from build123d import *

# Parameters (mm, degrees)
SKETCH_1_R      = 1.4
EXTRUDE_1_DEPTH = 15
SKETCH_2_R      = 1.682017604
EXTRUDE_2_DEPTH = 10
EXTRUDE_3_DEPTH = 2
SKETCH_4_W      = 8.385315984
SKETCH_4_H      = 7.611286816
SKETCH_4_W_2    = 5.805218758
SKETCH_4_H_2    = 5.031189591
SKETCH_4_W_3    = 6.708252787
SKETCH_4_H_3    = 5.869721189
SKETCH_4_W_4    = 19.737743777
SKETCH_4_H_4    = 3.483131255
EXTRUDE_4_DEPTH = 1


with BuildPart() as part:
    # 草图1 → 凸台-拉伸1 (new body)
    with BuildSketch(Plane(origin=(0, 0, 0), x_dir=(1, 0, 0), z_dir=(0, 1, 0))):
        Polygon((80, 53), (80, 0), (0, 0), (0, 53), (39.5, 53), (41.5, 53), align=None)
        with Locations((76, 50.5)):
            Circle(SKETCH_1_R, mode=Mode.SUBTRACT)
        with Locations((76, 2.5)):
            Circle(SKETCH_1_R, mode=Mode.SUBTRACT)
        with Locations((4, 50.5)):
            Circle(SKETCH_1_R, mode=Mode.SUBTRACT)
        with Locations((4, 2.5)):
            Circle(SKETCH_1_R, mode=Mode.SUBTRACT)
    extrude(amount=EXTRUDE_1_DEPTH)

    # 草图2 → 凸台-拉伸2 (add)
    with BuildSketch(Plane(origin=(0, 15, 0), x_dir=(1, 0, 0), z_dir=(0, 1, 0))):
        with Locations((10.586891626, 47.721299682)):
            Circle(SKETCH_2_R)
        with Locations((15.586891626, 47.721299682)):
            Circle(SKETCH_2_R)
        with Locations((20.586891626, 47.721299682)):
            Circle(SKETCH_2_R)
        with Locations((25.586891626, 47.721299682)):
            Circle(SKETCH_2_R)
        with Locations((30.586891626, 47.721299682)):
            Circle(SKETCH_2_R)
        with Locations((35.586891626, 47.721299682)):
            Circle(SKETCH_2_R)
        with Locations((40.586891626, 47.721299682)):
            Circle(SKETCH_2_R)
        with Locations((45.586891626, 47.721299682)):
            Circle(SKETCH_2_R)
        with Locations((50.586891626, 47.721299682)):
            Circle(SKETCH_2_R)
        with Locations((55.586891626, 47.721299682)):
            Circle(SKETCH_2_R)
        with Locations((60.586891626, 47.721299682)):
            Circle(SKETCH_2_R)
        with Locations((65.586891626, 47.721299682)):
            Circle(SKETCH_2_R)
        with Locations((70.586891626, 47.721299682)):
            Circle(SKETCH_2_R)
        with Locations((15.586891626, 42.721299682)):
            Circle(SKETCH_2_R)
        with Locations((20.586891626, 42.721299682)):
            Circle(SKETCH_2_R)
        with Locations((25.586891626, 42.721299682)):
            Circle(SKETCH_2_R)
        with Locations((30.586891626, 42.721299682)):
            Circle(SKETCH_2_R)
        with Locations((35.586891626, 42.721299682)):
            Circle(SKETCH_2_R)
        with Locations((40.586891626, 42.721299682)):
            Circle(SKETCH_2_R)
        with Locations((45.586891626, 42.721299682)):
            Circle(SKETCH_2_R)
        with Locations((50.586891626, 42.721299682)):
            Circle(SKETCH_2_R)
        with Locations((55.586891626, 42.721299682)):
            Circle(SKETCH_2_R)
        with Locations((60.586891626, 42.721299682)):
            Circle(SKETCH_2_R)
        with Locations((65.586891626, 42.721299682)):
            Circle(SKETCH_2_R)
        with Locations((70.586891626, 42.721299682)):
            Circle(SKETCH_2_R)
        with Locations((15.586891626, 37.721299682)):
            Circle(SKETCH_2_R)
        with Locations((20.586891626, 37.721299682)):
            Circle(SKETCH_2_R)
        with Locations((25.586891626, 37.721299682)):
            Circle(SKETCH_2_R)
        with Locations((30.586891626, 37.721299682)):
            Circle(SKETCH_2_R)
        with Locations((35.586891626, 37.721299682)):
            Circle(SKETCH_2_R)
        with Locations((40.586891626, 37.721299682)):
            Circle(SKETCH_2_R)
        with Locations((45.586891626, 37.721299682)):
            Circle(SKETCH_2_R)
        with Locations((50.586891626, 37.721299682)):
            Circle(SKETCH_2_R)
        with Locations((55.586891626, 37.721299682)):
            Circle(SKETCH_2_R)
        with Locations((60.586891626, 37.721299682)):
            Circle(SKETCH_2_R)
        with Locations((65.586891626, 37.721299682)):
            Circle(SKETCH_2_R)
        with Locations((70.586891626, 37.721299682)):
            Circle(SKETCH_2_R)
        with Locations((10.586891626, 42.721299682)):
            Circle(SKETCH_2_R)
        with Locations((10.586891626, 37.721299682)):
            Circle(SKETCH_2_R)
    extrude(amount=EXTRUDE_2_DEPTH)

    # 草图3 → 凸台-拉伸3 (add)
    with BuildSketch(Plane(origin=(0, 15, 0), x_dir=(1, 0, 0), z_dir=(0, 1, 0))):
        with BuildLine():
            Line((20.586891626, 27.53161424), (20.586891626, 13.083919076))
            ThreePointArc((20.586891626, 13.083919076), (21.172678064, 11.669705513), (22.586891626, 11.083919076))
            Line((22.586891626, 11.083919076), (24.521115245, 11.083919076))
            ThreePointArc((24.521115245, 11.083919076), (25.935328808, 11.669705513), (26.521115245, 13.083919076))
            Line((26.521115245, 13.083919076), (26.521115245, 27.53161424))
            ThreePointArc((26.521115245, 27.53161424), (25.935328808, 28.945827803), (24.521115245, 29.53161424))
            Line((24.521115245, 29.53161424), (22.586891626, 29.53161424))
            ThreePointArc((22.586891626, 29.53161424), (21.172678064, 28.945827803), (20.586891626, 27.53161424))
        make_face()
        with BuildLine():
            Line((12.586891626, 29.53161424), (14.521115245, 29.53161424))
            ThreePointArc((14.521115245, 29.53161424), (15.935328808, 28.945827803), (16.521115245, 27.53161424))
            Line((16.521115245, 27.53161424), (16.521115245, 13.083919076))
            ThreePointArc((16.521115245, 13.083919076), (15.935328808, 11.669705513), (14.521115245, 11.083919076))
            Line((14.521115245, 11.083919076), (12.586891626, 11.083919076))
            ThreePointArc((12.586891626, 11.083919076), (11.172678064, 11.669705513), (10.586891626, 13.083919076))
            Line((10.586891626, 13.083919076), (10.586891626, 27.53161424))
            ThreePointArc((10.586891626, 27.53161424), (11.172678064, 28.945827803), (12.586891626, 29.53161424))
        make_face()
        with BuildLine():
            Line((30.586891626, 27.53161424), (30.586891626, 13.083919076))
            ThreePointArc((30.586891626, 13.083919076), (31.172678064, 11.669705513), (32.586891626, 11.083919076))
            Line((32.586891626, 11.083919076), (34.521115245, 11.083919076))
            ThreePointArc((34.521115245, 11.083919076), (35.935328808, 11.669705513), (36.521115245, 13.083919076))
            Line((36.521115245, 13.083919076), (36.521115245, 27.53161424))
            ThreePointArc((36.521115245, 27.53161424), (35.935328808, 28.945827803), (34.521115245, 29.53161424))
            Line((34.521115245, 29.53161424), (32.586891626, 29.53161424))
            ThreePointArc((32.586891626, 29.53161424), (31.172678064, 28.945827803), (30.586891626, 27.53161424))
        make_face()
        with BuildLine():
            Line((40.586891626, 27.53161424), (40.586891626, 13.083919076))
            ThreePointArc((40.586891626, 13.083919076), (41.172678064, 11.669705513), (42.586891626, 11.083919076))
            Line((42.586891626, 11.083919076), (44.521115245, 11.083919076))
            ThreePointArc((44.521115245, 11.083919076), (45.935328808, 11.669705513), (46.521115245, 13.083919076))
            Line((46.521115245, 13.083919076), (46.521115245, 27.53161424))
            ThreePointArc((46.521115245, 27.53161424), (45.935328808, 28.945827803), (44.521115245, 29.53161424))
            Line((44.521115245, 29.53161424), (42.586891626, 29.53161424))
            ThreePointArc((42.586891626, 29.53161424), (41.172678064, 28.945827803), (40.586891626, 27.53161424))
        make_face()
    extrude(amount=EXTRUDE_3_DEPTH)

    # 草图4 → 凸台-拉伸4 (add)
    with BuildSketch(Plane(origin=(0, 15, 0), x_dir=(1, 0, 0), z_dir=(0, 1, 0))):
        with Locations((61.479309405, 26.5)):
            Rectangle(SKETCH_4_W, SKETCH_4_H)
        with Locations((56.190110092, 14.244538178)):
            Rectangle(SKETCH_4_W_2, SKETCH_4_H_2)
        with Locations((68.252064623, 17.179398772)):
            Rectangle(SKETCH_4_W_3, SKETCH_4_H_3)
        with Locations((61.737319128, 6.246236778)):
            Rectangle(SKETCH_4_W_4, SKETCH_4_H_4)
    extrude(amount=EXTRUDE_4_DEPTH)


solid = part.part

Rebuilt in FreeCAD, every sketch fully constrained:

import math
import FreeCAD as App
import Part
import Sketcher

V = App.Vector
Q = App.Units.Quantity

doc = App.newDocument("Part")
body = doc.addObject("PartDesign::Body", "Body")

# Sketch on XZ plane
sketch1 = doc.addObject("Sketcher::SketchObject", "Sketch")
body.addObject(sketch1)
sketch1.AttachmentSupport = (doc.XZ_Plane, [""])
sketch1.MapMode = "FlatFace"
sketch1.addGeometry(Part.LineSegment(V(80, 0, 0), V(80, -53, 0)), False)
sketch1.addGeometry(Part.LineSegment(V(80, -53, 0), V(0, -53, 0)), False)
sketch1.addGeometry(Part.LineSegment(V(0, -53, 0), V(0, 0, 0)), False)
sketch1.addGeometry(Part.LineSegment(V(0, 0, 0), V(80, 0, 0)), False)
sketch1.addGeometry(Part.Circle(V(76, -2.5, 0), V(0, 0, 1), 1.4), False)
sketch1.addGeometry(Part.Circle(V(4, -2.5, 0), V(0, 0, 1), 1.4), False)
sketch1.addGeometry(Part.Circle(V(76, -50.5, 0), V(0, 0, 1), 1.4), False)
sketch1.addGeometry(Part.Circle(V(4, -50.5, 0), V(0, 0, 1), 1.4), False)
sketch1.addConstraint(Sketcher.Constraint("Coincident", 0, 2, 1, 1))
sketch1.addConstraint(Sketcher.Constraint("Coincident", 1, 2, 2, 1))
sketch1.addConstraint(Sketcher.Constraint("Coincident", 2, 2, 3, 1))
sketch1.addConstraint(Sketcher.Constraint("Coincident", 3, 2, 0, 1))
sketch1.addConstraint(Sketcher.Constraint("Vertical", 0))
sketch1.addConstraint(Sketcher.Constraint("Horizontal", 1))
sketch1.addConstraint(Sketcher.Constraint("Vertical", 2))
sketch1.addConstraint(Sketcher.Constraint("Horizontal", 3))
sketch1.addConstraint(Sketcher.Constraint("Coincident", 2, 2, -1, 1))
sketch1.addConstraint(Sketcher.Constraint("Equal", 4, 5))
sketch1.addConstraint(Sketcher.Constraint("Equal", 5, 6))
sketch1.addConstraint(Sketcher.Constraint("Equal", 6, 7))
sketch1.addConstraint(Sketcher.Constraint("Horizontal", 4, 3, 5, 3))
sketch1.addConstraint(Sketcher.Constraint("Horizontal", 6, 3, 7, 3))
sketch1.addConstraint(Sketcher.Constraint("Vertical", 4, 3, 6, 3))
sketch1.addConstraint(Sketcher.Constraint("Vertical", 5, 3, 7, 3))
sketch1.addConstraint(Sketcher.Constraint("Diameter", 4, Q("2.8 mm")))
sketch1.addConstraint(Sketcher.Constraint("DistanceX", 1, 2, 1, 1, Q("80 mm")))
sketch1.addConstraint(Sketcher.Constraint("DistanceY", 0, 2, 0, 1, Q("53 mm")))
sketch1.addConstraint(Sketcher.Constraint("DistanceX", -1, 1, 4, 3, Q("76 mm")))
sketch1.addConstraint(Sketcher.Constraint("DistanceX", -1, 1, 5, 3, Q("4 mm")))
sketch1.addConstraint(Sketcher.Constraint("DistanceY", 6, 3, 4, 3, Q("48 mm")))
sketch1.addConstraint(Sketcher.Constraint("DistanceY", 4, 3, -1, 1, Q("2.5 mm")))
pad1 = doc.addObject("PartDesign::Pad", "Pad")
body.addObject(pad1)
pad1.Profile = sketch1
pad1.Length = 15
pad1.Reversed = True

# Sketch on XZ plane
sketch2 = doc.addObject("Sketcher::SketchObject", "Sketch001")
body.addObject(sketch2)
sketch2.AttachmentSupport = (doc.XZ_Plane, [""])
sketch2.MapMode = "FlatFace"
sketch2.AttachmentOffset = App.Placement(V(0, 0, -15), App.Rotation())
sketch2.addGeometry(Part.Circle(V(10.586892, -47.7213, 0), V(0, 0, 1), 1.682018), False)
sketch2.addGeometry(Part.Circle(V(15.586892, -47.7213, 0), V(0, 0, 1), 1.682018), False)
sketch2.addGeometry(Part.Circle(V(20.586892, -47.7213, 0), V(0, 0, 1), 1.682018), False)
sketch2.addGeometry(Part.Circle(V(25.586892, -47.7213, 0), V(0, 0, 1), 1.682018), False)
sketch2.addGeometry(Part.Circle(V(30.586892, -47.7213, 0), V(0, 0, 1), 1.682018), False)
sketch2.addGeometry(Part.Circle(V(35.586892, -47.7213, 0), V(0, 0, 1), 1.682018), False)
sketch2.addGeometry(Part.Circle(V(40.586892, -47.7213, 0), V(0, 0, 1), 1.682018), False)
sketch2.addGeometry(Part.Circle(V(45.586892, -47.7213, 0), V(0, 0, 1), 1.682018), False)
sketch2.addGeometry(Part.Circle(V(50.586892, -47.7213, 0), V(0, 0, 1), 1.682018), False)
sketch2.addGeometry(Part.Circle(V(55.586892, -47.7213, 0), V(0, 0, 1), 1.682018), False)
sketch2.addGeometry(Part.Circle(V(60.586892, -47.7213, 0), V(0, 0, 1), 1.682018), False)
sketch2.addGeometry(Part.Circle(V(65.586892, -47.7213, 0), V(0, 0, 1), 1.682018), False)
sketch2.addGeometry(Part.Circle(V(70.586892, -47.7213, 0), V(0, 0, 1), 1.682018), False)
sketch2.addGeometry(Part.Circle(V(15.586892, -42.7213, 0), V(0, 0, 1), 1.682018), False)
sketch2.addGeometry(Part.Circle(V(20.586892, -42.7213, 0), V(0, 0, 1), 1.682018), False)
sketch2.addGeometry(Part.Circle(V(25.586892, -42.7213, 0), V(0, 0, 1), 1.682018), False)
sketch2.addGeometry(Part.Circle(V(30.586892, -42.7213, 0), V(0, 0, 1), 1.682018), False)
sketch2.addGeometry(Part.Circle(V(35.586892, -42.7213, 0), V(0, 0, 1), 1.682018), False)
sketch2.addGeometry(Part.Circle(V(40.586892, -42.7213, 0), V(0, 0, 1), 1.682018), False)
sketch2.addGeometry(Part.Circle(V(45.586892, -42.7213, 0), V(0, 0, 1), 1.682018), False)
sketch2.addGeometry(Part.Circle(V(50.586892, -42.7213, 0), V(0, 0, 1), 1.682018), False)
sketch2.addGeometry(Part.Circle(V(55.586892, -42.7213, 0), V(0, 0, 1), 1.682018), False)
sketch2.addGeometry(Part.Circle(V(60.586892, -42.7213, 0), V(0, 0, 1), 1.682018), False)
sketch2.addGeometry(Part.Circle(V(65.586892, -42.7213, 0), V(0, 0, 1), 1.682018), False)
sketch2.addGeometry(Part.Circle(V(70.586892, -42.7213, 0), V(0, 0, 1), 1.682018), False)
sketch2.addGeometry(Part.Circle(V(15.586892, -37.7213, 0), V(0, 0, 1), 1.682018), False)
sketch2.addGeometry(Part.Circle(V(20.586892, -37.7213, 0), V(0, 0, 1), 1.682018), False)
sketch2.addGeometry(Part.Circle(V(25.586892, -37.7213, 0), V(0, 0, 1), 1.682018), False)
sketch2.addGeometry(Part.Circle(V(30.586892, -37.7213, 0), V(0, 0, 1), 1.682018), False)
sketch2.addGeometry(Part.Circle(V(35.586892, -37.7213, 0), V(0, 0, 1), 1.682018), False)
sketch2.addGeometry(Part.Circle(V(40.586892, -37.7213, 0), V(0, 0, 1), 1.682018), False)
sketch2.addGeometry(Part.Circle(V(45.586892, -37.7213, 0), V(0, 0, 1), 1.682018), False)
sketch2.addGeometry(Part.Circle(V(50.586892, -37.7213, 0), V(0, 0, 1), 1.682018), False)
sketch2.addGeometry(Part.Circle(V(55.586892, -37.7213, 0), V(0, 0, 1), 1.682018), False)
sketch2.addGeometry(Part.Circle(V(60.586892, -37.7213, 0), V(0, 0, 1), 1.682018), False)
sketch2.addGeometry(Part.Circle(V(65.586892, -37.7213, 0), V(0, 0, 1), 1.682018), False)
sketch2.addGeometry(Part.Circle(V(70.586892, -37.7213, 0), V(0, 0, 1), 1.682018), False)
sketch2.addGeometry(Part.Circle(V(10.586892, -42.7213, 0), V(0, 0, 1), 1.682018), False)
sketch2.addGeometry(Part.Circle(V(10.586892, -37.7213, 0), V(0, 0, 1), 1.682018), False)
sketch2.addConstraint(Sketcher.Constraint("Equal", 0, 1))
sketch2.addConstraint(Sketcher.Constraint("Equal", 1, 2))
sketch2.addConstraint(Sketcher.Constraint("Equal", 2, 3))
sketch2.addConstraint(Sketcher.Constraint("Equal", 3, 4))
sketch2.addConstraint(Sketcher.Constraint("Equal", 4, 5))
sketch2.addConstraint(Sketcher.Constraint("Equal", 5, 6))
sketch2.addConstraint(Sketcher.Constraint("Equal", 6, 7))
sketch2.addConstraint(Sketcher.Constraint("Equal", 7, 8))
sketch2.addConstraint(Sketcher.Constraint("Equal", 8, 9))
sketch2.addConstraint(Sketcher.Constraint("Equal", 9, 10))
sketch2.addConstraint(Sketcher.Constraint("Equal", 10, 11))
sketch2.addConstraint(Sketcher.Constraint("Equal", 11, 12))
sketch2.addConstraint(Sketcher.Constraint("Equal", 12, 13))
sketch2.addConstraint(Sketcher.Constraint("Equal", 13, 14))
sketch2.addConstraint(Sketcher.Constraint("Equal", 14, 15))
sketch2.addConstraint(Sketcher.Constraint("Equal", 15, 16))
sketch2.addConstraint(Sketcher.Constraint("Equal", 16, 17))
sketch2.addConstraint(Sketcher.Constraint("Equal", 17, 18))
sketch2.addConstraint(Sketcher.Constraint("Equal", 18, 19))
sketch2.addConstraint(Sketcher.Constraint("Equal", 19, 20))
sketch2.addConstraint(Sketcher.Constraint("Equal", 20, 21))
sketch2.addConstraint(Sketcher.Constraint("Equal", 21, 22))
sketch2.addConstraint(Sketcher.Constraint("Equal", 22, 23))
sketch2.addConstraint(Sketcher.Constraint("Equal", 23, 24))
sketch2.addConstraint(Sketcher.Constraint("Equal", 24, 25))
sketch2.addConstraint(Sketcher.Constraint("Equal", 25, 26))
sketch2.addConstraint(Sketcher.Constraint("Equal", 26, 27))
sketch2.addConstraint(Sketcher.Constraint("Equal", 27, 28))
sketch2.addConstraint(Sketcher.Constraint("Equal", 28, 29))
sketch2.addConstraint(Sketcher.Constraint("Equal", 29, 30))
sketch2.addConstraint(Sketcher.Constraint("Equal", 30, 31))
sketch2.addConstraint(Sketcher.Constraint("Equal", 31, 32))
sketch2.addConstraint(Sketcher.Constraint("Equal", 32, 33))
sketch2.addConstraint(Sketcher.Constraint("Equal", 33, 34))
sketch2.addConstraint(Sketcher.Constraint("Equal", 34, 35))
sketch2.addConstraint(Sketcher.Constraint("Equal", 35, 36))
sketch2.addConstraint(Sketcher.Constraint("Equal", 36, 37))
sketch2.addConstraint(Sketcher.Constraint("Equal", 37, 38))
sketch2.addConstraint(Sketcher.Constraint("Horizontal", 0, 3, 1, 3))
sketch2.addConstraint(Sketcher.Constraint("Horizontal", 1, 3, 2, 3))
sketch2.addConstraint(Sketcher.Constraint("Horizontal", 2, 3, 3, 3))
sketch2.addConstraint(Sketcher.Constraint("Horizontal", 3, 3, 4, 3))
sketch2.addConstraint(Sketcher.Constraint("Horizontal", 4, 3, 5, 3))
sketch2.addConstraint(Sketcher.Constraint("Horizontal", 5, 3, 6, 3))
sketch2.addConstraint(Sketcher.Constraint("Horizontal", 6, 3, 7, 3))
sketch2.addConstraint(Sketcher.Constraint("Horizontal", 7, 3, 8, 3))
sketch2.addConstraint(Sketcher.Constraint("Horizontal", 8, 3, 9, 3))
sketch2.addConstraint(Sketcher.Constraint("Horizontal", 9, 3, 10, 3))
sketch2.addConstraint(Sketcher.Constraint("Horizontal", 10, 3, 11, 3))
sketch2.addConstraint(Sketcher.Constraint("Horizontal", 11, 3, 12, 3))
sketch2.addConstraint(Sketcher.Constraint("Horizontal", 13, 3, 14, 3))
sketch2.addConstraint(Sketcher.Constraint("Horizontal", 14, 3, 15, 3))
sketch2.addConstraint(Sketcher.Constraint("Horizontal", 15, 3, 16, 3))
sketch2.addConstraint(Sketcher.Constraint("Horizontal", 16, 3, 17, 3))
sketch2.addConstraint(Sketcher.Constraint("Horizontal", 17, 3, 18, 3))
sketch2.addConstraint(Sketcher.Constraint("Horizontal", 18, 3, 19, 3))
sketch2.addConstraint(Sketcher.Constraint("Horizontal", 19, 3, 20, 3))
sketch2.addConstraint(Sketcher.Constraint("Horizontal", 20, 3, 21, 3))
sketch2.addConstraint(Sketcher.Constraint("Horizontal", 21, 3, 22, 3))
sketch2.addConstraint(Sketcher.Constraint("Horizontal", 22, 3, 23, 3))
sketch2.addConstraint(Sketcher.Constraint("Horizontal", 23, 3, 24, 3))
sketch2.addConstraint(Sketcher.Constraint("Horizontal", 25, 3, 26, 3))
sketch2.addConstraint(Sketcher.Constraint("Horizontal", 26, 3, 27, 3))
sketch2.addConstraint(Sketcher.Constraint("Horizontal", 27, 3, 28, 3))
sketch2.addConstraint(Sketcher.Constraint("Horizontal", 28, 3, 29, 3))
sketch2.addConstraint(Sketcher.Constraint("Horizontal", 29, 3, 30, 3))
sketch2.addConstraint(Sketcher.Constraint("Horizontal", 30, 3, 31, 3))
sketch2.addConstraint(Sketcher.Constraint("Horizontal", 31, 3, 32, 3))
sketch2.addConstraint(Sketcher.Constraint("Horizontal", 32, 3, 33, 3))
sketch2.addConstraint(Sketcher.Constraint("Horizontal", 33, 3, 34, 3))
sketch2.addConstraint(Sketcher.Constraint("Horizontal", 34, 3, 35, 3))
sketch2.addConstraint(Sketcher.Constraint("Horizontal", 35, 3, 36, 3))
sketch2.addConstraint(Sketcher.Constraint("Horizontal", 24, 3, 37, 3))
sketch2.addConstraint(Sketcher.Constraint("Horizontal", 36, 3, 38, 3))
sketch2.addConstraint(Sketcher.Constraint("Vertical", 1, 3, 13, 3))
sketch2.addConstraint(Sketcher.Constraint("Vertical", 2, 3, 14, 3))
sketch2.addConstraint(Sketcher.Constraint("Vertical", 3, 3, 15, 3))
sketch2.addConstraint(Sketcher.Constraint("Vertical", 4, 3, 16, 3))
sketch2.addConstraint(Sketcher.Constraint("Vertical", 5, 3, 17, 3))
sketch2.addConstraint(Sketcher.Constraint("Vertical", 6, 3, 18, 3))
sketch2.addConstraint(Sketcher.Constraint("Vertical", 7, 3, 19, 3))
sketch2.addConstraint(Sketcher.Constraint("Vertical", 8, 3, 20, 3))
sketch2.addConstraint(Sketcher.Constraint("Vertical", 9, 3, 21, 3))
sketch2.addConstraint(Sketcher.Constraint("Vertical", 10, 3, 22, 3))
sketch2.addConstraint(Sketcher.Constraint("Vertical", 11, 3, 23, 3))
sketch2.addConstraint(Sketcher.Constraint("Vertical", 12, 3, 24, 3))
sketch2.addConstraint(Sketcher.Constraint("Vertical", 13, 3, 25, 3))
sketch2.addConstraint(Sketcher.Constraint("Vertical", 14, 3, 26, 3))
sketch2.addConstraint(Sketcher.Constraint("Vertical", 15, 3, 27, 3))
sketch2.addConstraint(Sketcher.Constraint("Vertical", 16, 3, 28, 3))
sketch2.addConstraint(Sketcher.Constraint("Vertical", 17, 3, 29, 3))
sketch2.addConstraint(Sketcher.Constraint("Vertical", 18, 3, 30, 3))
sketch2.addConstraint(Sketcher.Constraint("Vertical", 19, 3, 31, 3))
sketch2.addConstraint(Sketcher.Constraint("Vertical", 20, 3, 32, 3))
sketch2.addConstraint(Sketcher.Constraint("Vertical", 21, 3, 33, 3))
sketch2.addConstraint(Sketcher.Constraint("Vertical", 22, 3, 34, 3))
sketch2.addConstraint(Sketcher.Constraint("Vertical", 23, 3, 35, 3))
sketch2.addConstraint(Sketcher.Constraint("Vertical", 24, 3, 36, 3))
sketch2.addConstraint(Sketcher.Constraint("Vertical", 0, 3, 37, 3))
sketch2.addConstraint(Sketcher.Constraint("Vertical", 37, 3, 38, 3))
sketch2.addConstraint(Sketcher.Constraint("DistanceX", 0, 3, 1, 3, Q("5 mm")))
sketch2.addConstraint(Sketcher.Constraint("DistanceX", 1, 3, 2, 3, Q("5 mm")))
sketch2.addConstraint(Sketcher.Constraint("DistanceX", 2, 3, 3, 3, Q("5 mm")))
sketch2.addConstraint(Sketcher.Constraint("DistanceX", 3, 3, 4, 3, Q("5 mm")))
sketch2.addConstraint(Sketcher.Constraint("DistanceX", 4, 3, 5, 3, Q("5 mm")))
sketch2.addConstraint(Sketcher.Constraint("DistanceX", 5, 3, 6, 3, Q("5 mm")))
sketch2.addConstraint(Sketcher.Constraint("DistanceX", 6, 3, 7, 3, Q("5 mm")))
sketch2.addConstraint(Sketcher.Constraint("DistanceX", 7, 3, 8, 3, Q("5 mm")))
sketch2.addConstraint(Sketcher.Constraint("DistanceX", 8, 3, 9, 3, Q("5 mm")))
sketch2.addConstraint(Sketcher.Constraint("DistanceX", 9, 3, 10, 3, Q("5 mm")))
sketch2.addConstraint(Sketcher.Constraint("DistanceX", 10, 3, 11, 3, Q("5 mm")))
sketch2.addConstraint(Sketcher.Constraint("DistanceX", 11, 3, 12, 3, Q("5 mm")))
sketch2.addConstraint(Sketcher.Constraint("DistanceY", 1, 3, 13, 3, Q("5 mm")))
sketch2.addConstraint(Sketcher.Constraint("DistanceY", 13, 3, 25, 3, Q("5 mm")))
sketch2.addConstraint(Sketcher.Constraint("Diameter", 0, Q("3.364035 mm")))
sketch2.addConstraint(Sketcher.Constraint("DistanceY", 0, 3, -1, 1, Q("47.7213 mm")))
sketch2.addConstraint(Sketcher.Constraint("DistanceX", -1, 1, 0, 3, Q("10.586892 mm")))
pad2 = doc.addObject("PartDesign::Pad", "Pad001")
body.addObject(pad2)
pad2.Profile = sketch2
pad2.Length = 10
pad2.Reversed = True

# Sketch on XZ plane
sketch3 = doc.addObject("Sketcher::SketchObject", "Sketch002")
body.addObject(sketch3)
sketch3.AttachmentSupport = (doc.XZ_Plane, [""])
sketch3.MapMode = "FlatFace"
sketch3.AttachmentOffset = App.Placement(V(0, 0, -15), App.Rotation())
sketch3.addGeometry(Part.LineSegment(V(20.586892, -27.531614, 0), V(20.586892, -13.083919, 0)), False)
sketch3.addGeometry(Part.ArcOfCircle(Part.Circle(V(22.586892, -13.083919, 0), V(0, 0, 1), 2), math.radians(90), math.radians(180)), False)
sketch3.addGeometry(Part.LineSegment(V(22.586892, -11.083919, 0), V(24.521115, -11.083919, 0)), False)
sketch3.addGeometry(Part.ArcOfCircle(Part.Circle(V(24.521115, -13.083919, 0), V(0, 0, 1), 2), math.radians(0), math.radians(90)), False)
sketch3.addGeometry(Part.LineSegment(V(26.521115, -13.083919, 0), V(26.521115, -27.531614, 0)), False)
sketch3.addGeometry(Part.ArcOfCircle(Part.Circle(V(24.521115, -27.531614, 0), V(0, 0, 1), 2), math.radians(-90), math.radians(0)), False)
sketch3.addGeometry(Part.LineSegment(V(24.521115, -29.531614, 0), V(22.586892, -29.531614, 0)), False)
sketch3.addGeometry(Part.ArcOfCircle(Part.Circle(V(22.586892, -27.531614, 0), V(0, 0, 1), 2), math.radians(180), math.radians(270)), False)
sketch3.addGeometry(Part.LineSegment(V(14.521115, -29.531614, 0), V(12.586892, -29.531614, 0)), False)
sketch3.addGeometry(Part.ArcOfCircle(Part.Circle(V(12.586892, -27.531614, 0), V(0, 0, 1), 2), math.radians(180), math.radians(270)), False)
sketch3.addGeometry(Part.LineSegment(V(10.586892, -27.531614, 0), V(10.586892, -13.083919, 0)), False)
sketch3.addGeometry(Part.ArcOfCircle(Part.Circle(V(12.586892, -13.083919, 0), V(0, 0, 1), 2), math.radians(90), math.radians(180)), False)
sketch3.addGeometry(Part.LineSegment(V(12.586892, -11.083919, 0), V(14.521115, -11.083919, 0)), False)
sketch3.addGeometry(Part.ArcOfCircle(Part.Circle(V(14.521115, -13.083919, 0), V(0, 0, 1), 2), math.radians(0), math.radians(90)), False)
sketch3.addGeometry(Part.LineSegment(V(16.521115, -13.083919, 0), V(16.521115, -27.531614, 0)), False)
sketch3.addGeometry(Part.ArcOfCircle(Part.Circle(V(14.521115, -27.531614, 0), V(0, 0, 1), 2), math.radians(-90), math.radians(0)), False)
sketch3.addGeometry(Part.LineSegment(V(30.586892, -27.531614, 0), V(30.586892, -13.083919, 0)), False)
sketch3.addGeometry(Part.ArcOfCircle(Part.Circle(V(32.586892, -13.083919, 0), V(0, 0, 1), 2), math.radians(90), math.radians(180)), False)
sketch3.addGeometry(Part.LineSegment(V(32.586892, -11.083919, 0), V(34.521115, -11.083919, 0)), False)
sketch3.addGeometry(Part.ArcOfCircle(Part.Circle(V(34.521115, -13.083919, 0), V(0, 0, 1), 2), math.radians(0), math.radians(90)), False)
sketch3.addGeometry(Part.LineSegment(V(36.521115, -13.083919, 0), V(36.521115, -27.531614, 0)), False)
sketch3.addGeometry(Part.ArcOfCircle(Part.Circle(V(34.521115, -27.531614, 0), V(0, 0, 1), 2), math.radians(-90), math.radians(0)), False)
sketch3.addGeometry(Part.LineSegment(V(34.521115, -29.531614, 0), V(32.586892, -29.531614, 0)), False)
sketch3.addGeometry(Part.ArcOfCircle(Part.Circle(V(32.586892, -27.531614, 0), V(0, 0, 1), 2), math.radians(180), math.radians(270)), False)
sketch3.addGeometry(Part.LineSegment(V(40.586892, -27.531614, 0), V(40.586892, -13.083919, 0)), False)
sketch3.addGeometry(Part.ArcOfCircle(Part.Circle(V(42.586892, -13.083919, 0), V(0, 0, 1), 2), math.radians(90), math.radians(180)), False)
sketch3.addGeometry(Part.LineSegment(V(42.586892, -11.083919, 0), V(44.521115, -11.083919, 0)), False)
sketch3.addGeometry(Part.ArcOfCircle(Part.Circle(V(44.521115, -13.083919, 0), V(0, 0, 1), 2), math.radians(0), math.radians(90)), False)
sketch3.addGeometry(Part.LineSegment(V(46.521115, -13.083919, 0), V(46.521115, -27.531614, 0)), False)
sketch3.addGeometry(Part.ArcOfCircle(Part.Circle(V(44.521115, -27.531614, 0), V(0, 0, 1), 2), math.radians(-90), math.radians(0)), False)
sketch3.addGeometry(Part.LineSegment(V(44.521115, -29.531614, 0), V(42.586892, -29.531614, 0)), False)
sketch3.addGeometry(Part.ArcOfCircle(Part.Circle(V(42.586892, -27.531614, 0), V(0, 0, 1), 2), math.radians(180), math.radians(270)), False)
sketch3.addConstraint(Sketcher.Constraint("Tangent", 0, 2, 1, 2))
sketch3.addConstraint(Sketcher.Constraint("Tangent", 1, 1, 2, 1))
sketch3.addConstraint(Sketcher.Constraint("Tangent", 2, 2, 3, 2))
sketch3.addConstraint(Sketcher.Constraint("Tangent", 3, 1, 4, 1))
sketch3.addConstraint(Sketcher.Constraint("Tangent", 4, 2, 5, 2))
sketch3.addConstraint(Sketcher.Constraint("Tangent", 5, 1, 6, 1))
sketch3.addConstraint(Sketcher.Constraint("Tangent", 6, 2, 7, 2))
sketch3.addConstraint(Sketcher.Constraint("Tangent", 7, 1, 0, 1))
sketch3.addConstraint(Sketcher.Constraint("Tangent", 8, 2, 9, 2))
sketch3.addConstraint(Sketcher.Constraint("Tangent", 9, 1, 10, 1))
sketch3.addConstraint(Sketcher.Constraint("Tangent", 10, 2, 11, 2))
sketch3.addConstraint(Sketcher.Constraint("Tangent", 11, 1, 12, 1))
sketch3.addConstraint(Sketcher.Constraint("Tangent", 12, 2, 13, 2))
sketch3.addConstraint(Sketcher.Constraint("Tangent", 13, 1, 14, 1))
sketch3.addConstraint(Sketcher.Constraint("Tangent", 14, 2, 15, 2))
sketch3.addConstraint(Sketcher.Constraint("Tangent", 15, 1, 8, 1))
sketch3.addConstraint(Sketcher.Constraint("Tangent", 16, 2, 17, 2))
sketch3.addConstraint(Sketcher.Constraint("Tangent", 17, 1, 18, 1))
sketch3.addConstraint(Sketcher.Constraint("Tangent", 18, 2, 19, 2))
sketch3.addConstraint(Sketcher.Constraint("Tangent", 19, 1, 20, 1))
sketch3.addConstraint(Sketcher.Constraint("Tangent", 20, 2, 21, 2))
sketch3.addConstraint(Sketcher.Constraint("Tangent", 21, 1, 22, 1))
sketch3.addConstraint(Sketcher.Constraint("Tangent", 22, 2, 23, 2))
sketch3.addConstraint(Sketcher.Constraint("Tangent", 23, 1, 16, 1))
sketch3.addConstraint(Sketcher.Constraint("Tangent", 24, 2, 25, 2))
sketch3.addConstraint(Sketcher.Constraint("Tangent", 25, 1, 26, 1))
sketch3.addConstraint(Sketcher.Constraint("Tangent", 26, 2, 27, 2))
sketch3.addConstraint(Sketcher.Constraint("Tangent", 27, 1, 28, 1))
sketch3.addConstraint(Sketcher.Constraint("Tangent", 28, 2, 29, 2))
sketch3.addConstraint(Sketcher.Constraint("Tangent", 29, 1, 30, 1))
sketch3.addConstraint(Sketcher.Constraint("Tangent", 30, 2, 31, 2))
sketch3.addConstraint(Sketcher.Constraint("Tangent", 31, 1, 24, 1))
sketch3.addConstraint(Sketcher.Constraint("Vertical", 0))
sketch3.addConstraint(Sketcher.Constraint("Horizontal", 2))
sketch3.addConstraint(Sketcher.Constraint("Vertical", 4))
sketch3.addConstraint(Sketcher.Constraint("Horizontal", 6))
sketch3.addConstraint(Sketcher.Constraint("Horizontal", 8))
sketch3.addConstraint(Sketcher.Constraint("Vertical", 10))
sketch3.addConstraint(Sketcher.Constraint("Horizontal", 12))
sketch3.addConstraint(Sketcher.Constraint("Vertical", 14))
sketch3.addConstraint(Sketcher.Constraint("Vertical", 16))
sketch3.addConstraint(Sketcher.Constraint("Horizontal", 18))
sketch3.addConstraint(Sketcher.Constraint("Vertical", 20))
sketch3.addConstraint(Sketcher.Constraint("Horizontal", 22))
sketch3.addConstraint(Sketcher.Constraint("Vertical", 24))
sketch3.addConstraint(Sketcher.Constraint("Horizontal", 26))
sketch3.addConstraint(Sketcher.Constraint("Vertical", 28))
sketch3.addConstraint(Sketcher.Constraint("Horizontal", 30))
sketch3.addConstraint(Sketcher.Constraint("Equal", 1, 3))
sketch3.addConstraint(Sketcher.Constraint("Equal", 3, 5))
sketch3.addConstraint(Sketcher.Constraint("Equal", 5, 7))
sketch3.addConstraint(Sketcher.Constraint("Equal", 7, 9))
sketch3.addConstraint(Sketcher.Constraint("Equal", 9, 11))
sketch3.addConstraint(Sketcher.Constraint("Equal", 11, 13))
sketch3.addConstraint(Sketcher.Constraint("Equal", 13, 15))
sketch3.addConstraint(Sketcher.Constraint("Equal", 15, 17))
sketch3.addConstraint(Sketcher.Constraint("Equal", 17, 19))
sketch3.addConstraint(Sketcher.Constraint("Equal", 19, 21))
sketch3.addConstraint(Sketcher.Constraint("Equal", 21, 23))
sketch3.addConstraint(Sketcher.Constraint("Equal", 23, 25))
sketch3.addConstraint(Sketcher.Constraint("Equal", 25, 27))
sketch3.addConstraint(Sketcher.Constraint("Equal", 27, 29))
sketch3.addConstraint(Sketcher.Constraint("Equal", 29, 31))
sketch3.addConstraint(Sketcher.Constraint("Horizontal", 7, 3, 9, 3))
sketch3.addConstraint(Sketcher.Constraint("Horizontal", 3, 3, 11, 3))
sketch3.addConstraint(Sketcher.Constraint("Horizontal", 13, 3, 17, 3))
sketch3.addConstraint(Sketcher.Constraint("Horizontal", 15, 3, 21, 3))
sketch3.addConstraint(Sketcher.Constraint("Horizontal", 19, 3, 25, 3))
sketch3.addConstraint(Sketcher.Constraint("Horizontal", 23, 3, 29, 3))
sketch3.addConstraint(Sketcher.Constraint("Equal", 6, 8))
sketch3.addConstraint(Sketcher.Constraint("Equal", 12, 18))
sketch3.addConstraint(Sketcher.Constraint("Equal", 22, 26))
sketch3.addConstraint(Sketcher.Constraint("Radius", 1, Q("2 mm")))
sketch3.addConstraint(Sketcher.Constraint("DistanceX", 9, 3, 7, 3, Q("10 mm")))
sketch3.addConstraint(Sketcher.Constraint("DistanceX", 1, 3, 17, 3, Q("10 mm")))
sketch3.addConstraint(Sketcher.Constraint("DistanceX", 17, 3, 25, 3, Q("10 mm")))
sketch3.addConstraint(Sketcher.Constraint("DistanceX", 2, 1, 2, 2, Q("1.934224 mm")))
sketch3.addConstraint(Sketcher.Constraint("DistanceY", 0, 1, 0, 2, Q("14.447695 mm")))
sketch3.addConstraint(Sketcher.Constraint("DistanceX", -1, 1, 1, 3, Q("22.586892 mm")))
sketch3.addConstraint(Sketcher.Constraint("DistanceY", 1, 3, -1, 1, Q("13.083919 mm")))
pad3 = doc.addObject("PartDesign::Pad", "Pad002")
body.addObject(pad3)
pad3.Profile = sketch3
pad3.Length = 2
pad3.Reversed = True

# Sketch on XZ plane
sketch4 = doc.addObject("Sketcher::SketchObject", "Sketch003")
body.addObject(sketch4)
sketch4.AttachmentSupport = (doc.XZ_Plane, [""])
sketch4.MapMode = "FlatFace"
sketch4.AttachmentOffset = App.Placement(V(0, 0, -15), App.Rotation())
sketch4.addGeometry(Part.LineSegment(V(57.286651, -30.305643, 0), V(57.286651, -22.694357, 0)), False)
sketch4.addGeometry(Part.LineSegment(V(57.286651, -22.694357, 0), V(65.671967, -22.694357, 0)), False)
sketch4.addGeometry(Part.LineSegment(V(65.671967, -22.694357, 0), V(65.671967, -30.305643, 0)), False)
sketch4.addGeometry(Part.LineSegment(V(65.671967, -30.305643, 0), V(57.286651, -30.305643, 0)), False)
sketch4.addGeometry(Part.LineSegment(V(53.287501, -16.760133, 0), V(53.287501, -11.728943, 0)), False)
sketch4.addGeometry(Part.LineSegment(V(53.287501, -11.728943, 0), V(59.092719, -11.728943, 0)), False)
sketch4.addGeometry(Part.LineSegment(V(59.092719, -11.728943, 0), V(59.092719, -16.760133, 0)), False)
sketch4.addGeometry(Part.LineSegment(V(59.092719, -16.760133, 0), V(53.287501, -16.760133, 0)), False)
sketch4.addGeometry(Part.LineSegment(V(64.897938, -20.114259, 0), V(64.897938, -14.244538, 0)), False)
sketch4.addGeometry(Part.LineSegment(V(64.897938, -14.244538, 0), V(71.606191, -14.244538, 0)), False)
sketch4.addGeometry(Part.LineSegment(V(71.606191, -14.244538, 0), V(71.606191, -20.114259, 0)), False)
sketch4.addGeometry(Part.LineSegment(V(71.606191, -20.114259, 0), V(64.897938, -20.114259, 0)), False)
sketch4.addGeometry(Part.LineSegment(V(51.868447, -7.987802, 0), V(51.868447, -4.504671, 0)), False)
sketch4.addGeometry(Part.LineSegment(V(51.868447, -4.504671, 0), V(71.606191, -4.504671, 0)), False)
sketch4.addGeometry(Part.LineSegment(V(71.606191, -4.504671, 0), V(71.606191, -7.987802, 0)), False)
sketch4.addGeometry(Part.LineSegment(V(71.606191, -7.987802, 0), V(51.868447, -7.987802, 0)), False)
sketch4.addConstraint(Sketcher.Constraint("Coincident", 0, 2, 1, 1))
sketch4.addConstraint(Sketcher.Constraint("Coincident", 1, 2, 2, 1))
sketch4.addConstraint(Sketcher.Constraint("Coincident", 2, 2, 3, 1))
sketch4.addConstraint(Sketcher.Constraint("Coincident", 3, 2, 0, 1))
sketch4.addConstraint(Sketcher.Constraint("Coincident", 4, 2, 5, 1))
sketch4.addConstraint(Sketcher.Constraint("Coincident", 5, 2, 6, 1))
sketch4.addConstraint(Sketcher.Constraint("Coincident", 6, 2, 7, 1))
sketch4.addConstraint(Sketcher.Constraint("Coincident", 7, 2, 4, 1))
sketch4.addConstraint(Sketcher.Constraint("Coincident", 8, 2, 9, 1))
sketch4.addConstraint(Sketcher.Constraint("Coincident", 9, 2, 10, 1))
sketch4.addConstraint(Sketcher.Constraint("Coincident", 10, 2, 11, 1))
sketch4.addConstraint(Sketcher.Constraint("Coincident", 11, 2, 8, 1))
sketch4.addConstraint(Sketcher.Constraint("Coincident", 12, 2, 13, 1))
sketch4.addConstraint(Sketcher.Constraint("Coincident", 13, 2, 14, 1))
sketch4.addConstraint(Sketcher.Constraint("Coincident", 14, 2, 15, 1))
sketch4.addConstraint(Sketcher.Constraint("Coincident", 15, 2, 12, 1))
sketch4.addConstraint(Sketcher.Constraint("Vertical", 0))
sketch4.addConstraint(Sketcher.Constraint("Horizontal", 1))
sketch4.addConstraint(Sketcher.Constraint("Vertical", 2))
sketch4.addConstraint(Sketcher.Constraint("Horizontal", 3))
sketch4.addConstraint(Sketcher.Constraint("Vertical", 4))
sketch4.addConstraint(Sketcher.Constraint("Horizontal", 5))
sketch4.addConstraint(Sketcher.Constraint("Vertical", 6))
sketch4.addConstraint(Sketcher.Constraint("Horizontal", 7))
sketch4.addConstraint(Sketcher.Constraint("Vertical", 8))
sketch4.addConstraint(Sketcher.Constraint("Horizontal", 9))
sketch4.addConstraint(Sketcher.Constraint("Vertical", 10))
sketch4.addConstraint(Sketcher.Constraint("Horizontal", 11))
sketch4.addConstraint(Sketcher.Constraint("Vertical", 12))
sketch4.addConstraint(Sketcher.Constraint("Horizontal", 13))
sketch4.addConstraint(Sketcher.Constraint("Vertical", 14))
sketch4.addConstraint(Sketcher.Constraint("Horizontal", 15))
sketch4.addConstraint(Sketcher.Constraint("Vertical", 10, 2, 13, 2))
sketch4.addConstraint(Sketcher.Constraint("DistanceX", 5, 1, 5, 2, Q("5.805219 mm")))
sketch4.addConstraint(Sketcher.Constraint("DistanceY", 4, 1, 4, 2, Q("5.03119 mm")))
sketch4.addConstraint(Sketcher.Constraint("DistanceY", 8, 1, 8, 2, Q("5.869721 mm")))
sketch4.addConstraint(Sketcher.Constraint("DistanceY", 12, 1, 12, 2, Q("3.483131 mm")))
sketch4.addConstraint(Sketcher.Constraint("DistanceX", -1, 1, 4, 2, Q("53.287501 mm")))
sketch4.addConstraint(Sketcher.Constraint("DistanceY", 3, 2, 4, 2, Q("18.5767 mm")))
sketch4.addConstraint(Sketcher.Constraint("DistanceX", 1, 1, 1, 2, Q("8.385316 mm")))
sketch4.addConstraint(Sketcher.Constraint("DistanceX", 9, 1, 9, 2, Q("6.708253 mm")))
sketch4.addConstraint(Sketcher.Constraint("DistanceX", 13, 1, 13, 2, Q("19.737744 mm")))
sketch4.addConstraint(Sketcher.Constraint("DistanceY", 0, 1, 0, 2, Q("7.611287 mm")))
sketch4.addConstraint(Sketcher.Constraint("DistanceX", -1, 1, 0, 2, Q("57.286651 mm")))
sketch4.addConstraint(Sketcher.Constraint("DistanceX", -1, 1, 8, 2, Q("64.897938 mm")))
sketch4.addConstraint(Sketcher.Constraint("DistanceY", 8, 2, -1, 1, Q("14.244538 mm")))
sketch4.addConstraint(Sketcher.Constraint("DistanceY", 12, 2, -1, 1, Q("4.504671 mm")))
sketch4.addConstraint(Sketcher.Constraint("DistanceY", 1, 2, 8, 2, Q("8.449818 mm")))
pad4 = doc.addObject("PartDesign::Pad", "Pad003")
body.addObject(pad4)
pad4.Profile = sketch4
pad4.Length = 1
pad4.Reversed = True

doc.recompute()
